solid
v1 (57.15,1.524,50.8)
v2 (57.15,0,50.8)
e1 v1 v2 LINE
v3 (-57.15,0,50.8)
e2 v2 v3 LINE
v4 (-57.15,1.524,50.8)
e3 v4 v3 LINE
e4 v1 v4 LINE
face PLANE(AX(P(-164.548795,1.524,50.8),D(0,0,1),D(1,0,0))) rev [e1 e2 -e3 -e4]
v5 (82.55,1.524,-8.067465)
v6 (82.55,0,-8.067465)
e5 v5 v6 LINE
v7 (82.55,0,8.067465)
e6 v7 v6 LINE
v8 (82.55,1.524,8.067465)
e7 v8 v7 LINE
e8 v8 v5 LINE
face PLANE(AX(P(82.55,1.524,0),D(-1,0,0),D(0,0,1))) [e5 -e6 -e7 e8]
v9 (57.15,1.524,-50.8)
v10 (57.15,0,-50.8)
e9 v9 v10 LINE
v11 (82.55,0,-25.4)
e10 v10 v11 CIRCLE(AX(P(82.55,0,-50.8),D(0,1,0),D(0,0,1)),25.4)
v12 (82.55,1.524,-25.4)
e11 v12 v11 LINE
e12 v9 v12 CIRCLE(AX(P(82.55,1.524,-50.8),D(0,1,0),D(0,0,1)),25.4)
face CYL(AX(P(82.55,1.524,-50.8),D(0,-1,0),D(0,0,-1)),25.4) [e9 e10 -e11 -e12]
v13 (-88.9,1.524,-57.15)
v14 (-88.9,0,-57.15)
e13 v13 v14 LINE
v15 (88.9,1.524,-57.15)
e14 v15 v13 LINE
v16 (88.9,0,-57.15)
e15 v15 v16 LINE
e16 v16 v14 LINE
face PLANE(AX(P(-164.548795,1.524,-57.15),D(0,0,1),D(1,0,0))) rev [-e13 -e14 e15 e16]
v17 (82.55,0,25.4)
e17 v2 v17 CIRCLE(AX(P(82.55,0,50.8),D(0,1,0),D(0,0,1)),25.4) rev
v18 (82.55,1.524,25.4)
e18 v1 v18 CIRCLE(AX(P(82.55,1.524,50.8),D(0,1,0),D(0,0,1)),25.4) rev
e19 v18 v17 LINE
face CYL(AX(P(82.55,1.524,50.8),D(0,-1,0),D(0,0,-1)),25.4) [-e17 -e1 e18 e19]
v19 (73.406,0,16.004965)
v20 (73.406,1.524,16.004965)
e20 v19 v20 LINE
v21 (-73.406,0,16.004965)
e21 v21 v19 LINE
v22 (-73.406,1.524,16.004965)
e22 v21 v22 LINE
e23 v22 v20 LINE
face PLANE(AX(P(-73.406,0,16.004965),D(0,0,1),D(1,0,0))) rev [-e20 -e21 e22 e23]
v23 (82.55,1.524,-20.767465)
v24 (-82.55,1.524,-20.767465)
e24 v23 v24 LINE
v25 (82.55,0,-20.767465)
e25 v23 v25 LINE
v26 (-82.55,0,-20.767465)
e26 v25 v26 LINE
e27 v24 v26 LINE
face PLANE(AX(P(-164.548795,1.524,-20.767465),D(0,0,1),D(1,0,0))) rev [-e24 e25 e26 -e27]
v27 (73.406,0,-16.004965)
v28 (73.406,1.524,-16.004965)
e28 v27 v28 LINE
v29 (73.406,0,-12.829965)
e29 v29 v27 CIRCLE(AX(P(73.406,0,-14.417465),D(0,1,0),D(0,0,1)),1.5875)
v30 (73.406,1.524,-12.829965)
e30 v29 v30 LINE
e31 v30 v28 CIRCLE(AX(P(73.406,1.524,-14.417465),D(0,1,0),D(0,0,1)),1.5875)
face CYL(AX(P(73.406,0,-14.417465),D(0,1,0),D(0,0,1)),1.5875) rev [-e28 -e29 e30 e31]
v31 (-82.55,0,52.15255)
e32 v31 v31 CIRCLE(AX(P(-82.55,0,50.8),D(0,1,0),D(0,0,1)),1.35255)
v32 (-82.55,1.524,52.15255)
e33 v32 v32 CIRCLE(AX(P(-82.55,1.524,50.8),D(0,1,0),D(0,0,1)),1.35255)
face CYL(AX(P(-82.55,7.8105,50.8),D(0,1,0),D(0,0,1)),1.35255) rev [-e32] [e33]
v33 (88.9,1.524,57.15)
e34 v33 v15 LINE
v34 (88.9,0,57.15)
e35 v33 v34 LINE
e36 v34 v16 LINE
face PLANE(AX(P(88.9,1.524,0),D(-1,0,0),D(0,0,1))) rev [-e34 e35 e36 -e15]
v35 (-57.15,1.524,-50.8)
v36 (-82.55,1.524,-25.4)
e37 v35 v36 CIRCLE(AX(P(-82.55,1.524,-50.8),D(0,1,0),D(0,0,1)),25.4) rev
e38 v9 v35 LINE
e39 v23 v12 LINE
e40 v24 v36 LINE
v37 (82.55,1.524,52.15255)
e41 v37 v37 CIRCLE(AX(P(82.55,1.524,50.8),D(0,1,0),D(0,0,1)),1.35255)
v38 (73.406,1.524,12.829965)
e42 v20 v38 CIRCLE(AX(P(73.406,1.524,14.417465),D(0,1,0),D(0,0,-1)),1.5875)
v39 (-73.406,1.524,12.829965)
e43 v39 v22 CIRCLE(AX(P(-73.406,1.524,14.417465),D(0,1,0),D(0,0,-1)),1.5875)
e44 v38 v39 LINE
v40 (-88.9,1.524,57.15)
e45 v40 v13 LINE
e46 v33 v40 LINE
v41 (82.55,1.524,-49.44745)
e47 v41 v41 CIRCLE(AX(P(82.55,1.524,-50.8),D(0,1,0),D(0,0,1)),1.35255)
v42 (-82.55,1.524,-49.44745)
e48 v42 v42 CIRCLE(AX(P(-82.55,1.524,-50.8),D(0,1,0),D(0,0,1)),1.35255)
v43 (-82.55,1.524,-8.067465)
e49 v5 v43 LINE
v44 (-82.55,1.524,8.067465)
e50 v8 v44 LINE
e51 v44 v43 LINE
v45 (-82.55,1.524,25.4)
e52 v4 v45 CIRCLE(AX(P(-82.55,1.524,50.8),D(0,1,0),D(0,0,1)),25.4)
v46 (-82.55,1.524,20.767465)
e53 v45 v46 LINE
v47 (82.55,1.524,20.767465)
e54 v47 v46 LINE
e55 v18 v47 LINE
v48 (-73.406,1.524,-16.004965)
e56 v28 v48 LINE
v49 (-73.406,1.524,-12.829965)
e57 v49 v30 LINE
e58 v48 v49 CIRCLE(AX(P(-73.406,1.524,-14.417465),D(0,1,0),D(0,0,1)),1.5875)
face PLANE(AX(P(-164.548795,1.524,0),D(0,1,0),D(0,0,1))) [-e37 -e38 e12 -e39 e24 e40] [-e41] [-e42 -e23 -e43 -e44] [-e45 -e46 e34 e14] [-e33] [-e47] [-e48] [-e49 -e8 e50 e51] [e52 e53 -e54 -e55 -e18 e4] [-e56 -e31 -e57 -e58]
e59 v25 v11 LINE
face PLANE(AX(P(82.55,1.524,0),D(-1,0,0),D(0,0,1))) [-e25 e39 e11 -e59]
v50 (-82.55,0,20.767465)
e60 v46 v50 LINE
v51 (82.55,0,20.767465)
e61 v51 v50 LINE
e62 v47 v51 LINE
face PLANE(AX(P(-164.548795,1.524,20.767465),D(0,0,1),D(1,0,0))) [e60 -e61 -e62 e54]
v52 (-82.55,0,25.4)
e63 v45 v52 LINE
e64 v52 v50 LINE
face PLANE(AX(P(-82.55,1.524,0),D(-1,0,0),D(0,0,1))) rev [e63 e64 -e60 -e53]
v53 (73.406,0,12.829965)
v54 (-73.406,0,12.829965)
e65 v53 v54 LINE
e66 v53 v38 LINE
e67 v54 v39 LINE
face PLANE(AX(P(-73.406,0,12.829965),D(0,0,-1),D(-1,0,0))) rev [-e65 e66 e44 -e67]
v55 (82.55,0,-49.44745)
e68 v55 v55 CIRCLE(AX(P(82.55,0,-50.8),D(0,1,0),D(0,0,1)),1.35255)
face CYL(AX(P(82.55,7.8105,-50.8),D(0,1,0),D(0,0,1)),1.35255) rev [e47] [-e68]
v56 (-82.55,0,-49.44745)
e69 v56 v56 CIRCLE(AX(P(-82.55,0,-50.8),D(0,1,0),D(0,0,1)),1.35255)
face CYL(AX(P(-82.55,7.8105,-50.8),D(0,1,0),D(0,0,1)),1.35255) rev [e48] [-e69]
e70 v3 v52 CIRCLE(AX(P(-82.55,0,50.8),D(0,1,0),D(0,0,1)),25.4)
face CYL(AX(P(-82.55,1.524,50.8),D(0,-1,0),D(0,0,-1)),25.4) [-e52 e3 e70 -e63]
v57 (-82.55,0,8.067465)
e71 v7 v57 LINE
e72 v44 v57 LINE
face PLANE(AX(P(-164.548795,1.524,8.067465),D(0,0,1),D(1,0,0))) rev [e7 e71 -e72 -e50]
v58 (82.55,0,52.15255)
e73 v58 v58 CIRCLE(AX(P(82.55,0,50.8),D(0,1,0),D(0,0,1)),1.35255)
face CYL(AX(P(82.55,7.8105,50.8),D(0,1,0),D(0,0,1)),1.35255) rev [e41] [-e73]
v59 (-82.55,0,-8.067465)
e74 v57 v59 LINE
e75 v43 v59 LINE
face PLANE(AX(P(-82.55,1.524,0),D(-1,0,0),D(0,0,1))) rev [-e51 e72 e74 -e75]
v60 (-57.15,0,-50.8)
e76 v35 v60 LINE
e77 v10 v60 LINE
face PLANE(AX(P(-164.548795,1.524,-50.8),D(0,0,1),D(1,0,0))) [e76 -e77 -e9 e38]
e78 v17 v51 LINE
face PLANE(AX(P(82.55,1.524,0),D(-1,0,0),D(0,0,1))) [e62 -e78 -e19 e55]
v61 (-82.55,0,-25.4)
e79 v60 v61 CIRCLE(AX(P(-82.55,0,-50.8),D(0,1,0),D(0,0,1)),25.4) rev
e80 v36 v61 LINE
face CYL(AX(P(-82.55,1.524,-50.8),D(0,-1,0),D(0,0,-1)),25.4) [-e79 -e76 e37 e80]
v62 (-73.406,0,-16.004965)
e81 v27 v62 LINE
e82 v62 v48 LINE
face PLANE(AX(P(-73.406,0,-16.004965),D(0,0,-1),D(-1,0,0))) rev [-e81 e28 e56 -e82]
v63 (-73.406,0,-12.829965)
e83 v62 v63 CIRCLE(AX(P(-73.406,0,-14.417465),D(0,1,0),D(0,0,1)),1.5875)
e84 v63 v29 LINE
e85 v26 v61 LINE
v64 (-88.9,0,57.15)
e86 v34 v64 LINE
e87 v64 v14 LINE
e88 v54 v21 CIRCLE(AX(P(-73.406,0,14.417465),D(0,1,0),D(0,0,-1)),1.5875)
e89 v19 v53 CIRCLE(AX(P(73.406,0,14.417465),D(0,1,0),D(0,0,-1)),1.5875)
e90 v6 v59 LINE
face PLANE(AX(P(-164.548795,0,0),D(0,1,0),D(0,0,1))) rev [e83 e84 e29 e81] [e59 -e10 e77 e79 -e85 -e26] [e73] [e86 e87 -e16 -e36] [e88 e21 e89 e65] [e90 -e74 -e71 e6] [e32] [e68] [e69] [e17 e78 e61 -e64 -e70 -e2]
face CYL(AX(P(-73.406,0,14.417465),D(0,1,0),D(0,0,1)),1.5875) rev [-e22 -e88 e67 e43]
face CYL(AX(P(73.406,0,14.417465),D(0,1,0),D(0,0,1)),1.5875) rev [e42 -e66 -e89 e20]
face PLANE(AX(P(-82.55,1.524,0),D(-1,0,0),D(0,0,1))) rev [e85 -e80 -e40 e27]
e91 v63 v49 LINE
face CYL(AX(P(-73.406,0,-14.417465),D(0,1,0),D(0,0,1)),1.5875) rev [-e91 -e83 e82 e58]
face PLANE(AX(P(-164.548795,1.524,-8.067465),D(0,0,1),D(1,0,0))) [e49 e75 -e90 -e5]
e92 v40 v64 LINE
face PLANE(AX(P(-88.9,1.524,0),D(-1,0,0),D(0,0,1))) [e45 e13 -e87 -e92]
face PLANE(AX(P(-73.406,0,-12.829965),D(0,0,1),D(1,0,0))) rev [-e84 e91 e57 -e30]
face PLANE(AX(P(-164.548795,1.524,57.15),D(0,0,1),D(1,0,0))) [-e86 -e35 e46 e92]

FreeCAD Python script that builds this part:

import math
import FreeCAD as App
import Part
import Sketcher

V = App.Vector
Q = App.Units.Quantity

doc = App.newDocument("Part")
body = doc.addObject("PartDesign::Body", "Body")

# Sketch on XZ plane
sketch1 = body.newObject("Sketcher::SketchObject", "Sketch")
sketch1.AttachmentSupport = (doc.getObject("XZ_Plane"), [""])
sketch1.MapMode = "FlatFace"
sketch1.addGeometry([
    Part.LineSegment(V(-88.9, -57.15, 0), V(-88.9, 57.15, 0)),  # 0
    Part.LineSegment(V(-88.9, 57.15, 0), V(88.9, 57.15, 0)),  # 1
    Part.LineSegment(V(88.9, 57.15, 0), V(88.9, -57.15, 0)),  # 2
    Part.LineSegment(V(88.9, -57.15, 0), V(-88.9, -57.15, 0)),  # 3
    Part.ArcOfCircle(Part.Circle(V(-82.55, 50.8, 0), V(0, 0, 1), 25.4), math.radians(-90), math.radians(0)),  # 4
    Part.LineSegment(V(-82.55, 25.4, 0), V(-82.55, 20.767465, 0)),  # 5
    Part.LineSegment(V(-82.55, 20.767465, 0), V(82.55, 20.767465, 0)),  # 6
    Part.LineSegment(V(82.55, 20.767465, 0), V(82.55, 25.4, 0)),  # 7
    Part.ArcOfCircle(Part.Circle(V(82.55, 50.8, 0), V(0, 0, 1), 25.4), math.radians(180), math.radians(270)),  # 8
    Part.LineSegment(V(57.15, 50.8, 0), V(-57.15, 50.8, 0)),  # 9
    Part.LineSegment(V(82.55, 8.067465, 0), V(-82.55, 8.067465, 0)),  # 10
    Part.LineSegment(V(-82.55, 8.067465, 0), V(-82.55, -8.067465, 0)),  # 11
    Part.LineSegment(V(-82.55, -8.067465, 0), V(82.55, -8.067465, 0)),  # 12
    Part.LineSegment(V(82.55, -8.067465, 0), V(82.55, 8.067465, 0)),  # 13
    Part.LineSegment(V(82.55, -25.4, 0), V(82.55, -20.767465, 0)),  # 14
    Part.LineSegment(V(82.55, -20.767465, 0), V(-82.55, -20.767465, 0)),  # 15
    Part.LineSegment(V(-82.55, -20.767465, 0), V(-82.55, -25.4, 0)),  # 16
    Part.ArcOfCircle(Part.Circle(V(-82.55, -50.8, 0), V(0, 0, 1), 25.4), math.radians(0), math.radians(90)),  # 17
    Part.LineSegment(V(-57.15, -50.8, 0), V(57.15, -50.8, 0)),  # 18
    Part.ArcOfCircle(Part.Circle(V(82.55, -50.8, 0), V(0, 0, 1), 25.4), math.radians(90), math.radians(180)),  # 19
], False)
sketch1.addConstraint([
    Sketcher.Constraint("Coincident", 0, 2, 1, 1),
    Sketcher.Constraint("Coincident", 1, 2, 2, 1),
    Sketcher.Constraint("Coincident", 2, 2, 3, 1),
    Sketcher.Constraint("Coincident", 3, 2, 0, 1),
    Sketcher.Constraint("Coincident", 4, 1, 5, 1),
    Sketcher.Constraint("Coincident", 5, 2, 6, 1),
    Sketcher.Constraint("Coincident", 6, 2, 7, 1),
    Sketcher.Constraint("Coincident", 7, 2, 8, 2),
    Sketcher.Constraint("Coincident", 8, 1, 9, 1),
    Sketcher.Constraint("Coincident", 9, 2, 4, 2),
    Sketcher.Constraint("Coincident", 10, 2, 11, 1),
    Sketcher.Constraint("Coincident", 11, 2, 12, 1),
    Sketcher.Constraint("Coincident", 12, 2, 13, 1),
    Sketcher.Constraint("Coincident", 13, 2, 10, 1),
    Sketcher.Constraint("Coincident", 14, 2, 15, 1),
    Sketcher.Constraint("Coincident", 15, 2, 16, 1),
    Sketcher.Constraint("Coincident", 16, 2, 17, 2),
    Sketcher.Constraint("Coincident", 17, 1, 18, 1),
    Sketcher.Constraint("Coincident", 18, 2, 19, 2),
    Sketcher.Constraint("Coincident", 19, 1, 14, 1),
    Sketcher.Constraint("Vertical", 0),
    Sketcher.Constraint("Horizontal", 1),
    Sketcher.Constraint("Vertical", 2),
    Sketcher.Constraint("Horizontal", 3),
    Sketcher.Constraint("Vertical", 5),
    Sketcher.Constraint("Horizontal", 6),
    Sketcher.Constraint("Vertical", 7),
    Sketcher.Constraint("Horizontal", 9),
    Sketcher.Constraint("Horizontal", 10),
    Sketcher.Constraint("Vertical", 11),
    Sketcher.Constraint("Horizontal", 12),
    Sketcher.Constraint("Vertical", 13),
    Sketcher.Constraint("Vertical", 14),
    Sketcher.Constraint("Horizontal", 15),
    Sketcher.Constraint("Vertical", 16),
    Sketcher.Constraint("Horizontal", 18),
    Sketcher.Constraint("Equal", 4, 8),
    Sketcher.Constraint("Equal", 8, 17),
    Sketcher.Constraint("Equal", 17, 19),
    Sketcher.Constraint("Symmetric", 8, 3, 17, 3, -1, 1),
    Sketcher.Constraint("Symmetric", 4, 3, 19, 3, -1, 1),
    Sketcher.Constraint("Symmetric", 0, 2, 2, 2, -1, 1),
    Sketcher.Constraint("Symmetric", 10, 2, 12, 2, -1, 1),
    Sketcher.Constraint("Symmetric", 5, 2, 14, 2, -1, 1),
    Sketcher.Constraint("Symmetric", 4, 3, 8, 3, -2),
    Sketcher.Constraint("Horizontal", 4, 3, 8, 1),
    Sketcher.Constraint("Horizontal", 19, 3, 17, 1),
    Sketcher.Constraint("Vertical", 17, 3, 4, 1),
    Sketcher.Constraint("Vertical", 19, 3, 6, 2),
    Sketcher.Constraint("Vertical", 5, 2, 10, 2),
    Sketcher.Constraint("Vertical", 11, 2, 15, 2),
    Sketcher.Constraint("Equal", 18, 0),
    Sketcher.Constraint("Radius", 4, Q("1 in")),
    Sketcher.Constraint("DistanceX", 1, 1, 1, 2, Q("7 in")),
    Sketcher.Constraint("DistanceX", 6, 1, 6, 2, Q("6.5 in")),
    Sketcher.Constraint("DistanceY", -1, 1, 4, 3, Q("2 in")),
    Sketcher.Constraint("DistanceY", 10, 2, 5, 2, Q("0.5 in")),
    Sketcher.Constraint("DistanceY", 11, 2, 11, 1, 16.134929),
])
pad1 = body.newObject("PartDesign::Pad", "Pad")
pad1.Profile = sketch1
pad1.Length = Q("0.06 in")
pad1.Reversed = True

# Sketch on XZ plane
sketch2 = body.newObject("Sketcher::SketchObject", "Sketch001")
sketch2.AttachmentSupport = (doc.getObject("XZ_Plane"), [""])
sketch2.MapMode = "FlatFace"
sketch2.AttachmentOffset = App.Placement(V(0, 0, -0.06 * 25.4), App.Rotation())
sketch2.addGeometry([
    Part.LineSegment(V(73.406, -16.004965, 0), V(-73.406, -16.004965, 0)),  # 0
    Part.ArcOfCircle(Part.Circle(V(-73.406, -14.417465, 0), V(0, 0, 1), 1.5875), math.radians(90), math.radians(270)),  # 1
    Part.LineSegment(V(-73.406, -12.829965, 0), V(73.406, -12.829965, 0)),  # 2
    Part.ArcOfCircle(Part.Circle(V(73.406, -14.417465, 0), V(0, 0, 1), 1.5875), math.radians(-90), math.radians(90)),  # 3
    Part.LineSegment(V(-73.406, 16.004965, 0), V(73.406, 16.004965, 0)),  # 4
    Part.ArcOfCircle(Part.Circle(V(73.406, 14.417465, 0), V(0, 0, 1), 1.5875), math.radians(-90), math.radians(90)),  # 5
    Part.LineSegment(V(73.406, 12.829965, 0), V(-73.406, 12.829965, 0)),  # 6
    Part.ArcOfCircle(Part.Circle(V(-73.406, 14.417465, 0), V(0, 0, 1), 1.5875), math.radians(90), math.radians(270)),  # 7
], False)
sketch2.addConstraint([
    Sketcher.Constraint("Tangent", 0, 2, 1, 2),
    Sketcher.Constraint("Tangent", 1, 1, 2, 1),
    Sketcher.Constraint("Tangent", 2, 2, 3, 2),
    Sketcher.Constraint("Tangent", 3, 1, 0, 1),
    Sketcher.Constraint("Tangent", 4, 2, 5, 2),
    Sketcher.Constraint("Tangent", 5, 1, 6, 1),
    Sketcher.Constraint("Tangent", 6, 2, 7, 2),
    Sketcher.Constraint("Tangent", 7, 1, 4, 1),
    Sketcher.Constraint("Horizontal", 0),
    Sketcher.Constraint("Horizontal", 2),
    Sketcher.Constraint("Horizontal", 4),
    Sketcher.Constraint("Horizontal", 6),
    Sketcher.Constraint("Equal", 3, 5),
    Sketcher.Constraint("Symmetric", 1, 3, 5, 3, -1, 1),
    Sketcher.Constraint("Vertical", 3, 3, 5, 3),
    Sketcher.Constraint("Vertical", 1, 3, 7, 3),
    Sketcher.Constraint("Radius", 1, Q("0.0625 in")),
    Sketcher.Constraint("DistanceX", 0, 2, 0, 1, Q("5.78 in")),
    Sketcher.Constraint("DistanceY", 3, 3, 5, 3, 28.834929),
])
pocket1 = body.newObject("PartDesign::Pocket", "Pocket")
pocket1.Profile = sketch2
pocket1.Type = "ThroughAll"
pocket1.Reversed = True

# Sketch on XZ plane
sketch3 = body.newObject("Sketcher::SketchObject", "Sketch002")
sketch3.AttachmentSupport = (doc.getObject("XZ_Plane"), [""])
sketch3.MapMode = "FlatFace"
sketch3.AttachmentOffset = App.Placement(V(0, 0, -0.3075 * 25.4), App.Rotation())
sketch3.addGeometry([
    Part.Circle(V(-82.55, -50.8, 0), V(0, 0, 1), 1.35255),
    Part.Circle(V(-82.55, 50.8, 0), V(0, 0, 1), 1.35255),
    Part.Circle(V(82.55, 50.8, 0), V(0, 0, 1), 1.35255),
    Part.Circle(V(82.55, -50.8, 0), V(0, 0, 1), 1.35255),
], False)
sketch3.addConstraint([
    Sketcher.Constraint("Equal", 0, 1),
    Sketcher.Constraint("Equal", 1, 2),
    Sketcher.Constraint("Equal", 2, 3),
    Sketcher.Constraint("Symmetric", 0, 3, 2, 3, -1, 1),
    Sketcher.Constraint("Symmetric", 1, 3, 3, 3, -1, 1),
    Sketcher.Constraint("Symmetric", 1, 3, 2, 3, -2),
    Sketcher.Constraint("DistanceY", 0, 3, -1, 1, Q("2 in")),
    Sketcher.Constraint("Diameter", 0, Q("0.1065 in")),
    Sketcher.Constraint("DistanceX", 1, 3, 2, 3, Q("6.5 in")),
])
doc.recompute()
hole = body.newObject("PartDesign::Hole", "Hole")
hole.Profile = sketch3
hole.ThreadType = "None"
hole.Diameter = Q("0.1065 in")
hole.DepthType = "ThroughAll"
hole.Reversed = True

# Sketch on XZ plane
sketch4 = body.newObject("Sketcher::SketchObject", "Sketch003")
sketch4.AttachmentSupport = (doc.getObject("XZ_Plane"), [""])
sketch4.MapMode = "FlatFace"
sketch4.AttachmentOffset = App.Placement(V(0, 0, -0.06 * 25.4), App.Rotation())
sketch4.addGeometry([
    Part.Circle(V(-82.55, -50.8, 0), V(0, 0, 1), 1.35255),
    Part.Circle(V(-82.55, 50.8, 0), V(0, 0, 1), 1.35255),
    Part.Circle(V(82.55, 50.8, 0), V(0, 0, 1), 1.35255),
    Part.Circle(V(82.55, -50.8, 0), V(0, 0, 1), 1.35255),
], False)
sketch4.addConstraint([
    Sketcher.Constraint("Equal", 0, 1),
    Sketcher.Constraint("Equal", 1, 2),
    Sketcher.Constraint("Equal", 2, 3),
    Sketcher.Constraint("Symmetric", 0, 3, 2, 3, -1, 1),
    Sketcher.Constraint("Symmetric", 1, 3, 3, 3, -1, 1),
    Sketcher.Constraint("Symmetric", 1, 3, 2, 3, -2),
    Sketcher.Constraint("DistanceY", 0, 3, -1, 1, Q("2 in")),
    Sketcher.Constraint("Diameter", 0, Q("0.1065 in")),
    Sketcher.Constraint("DistanceX", 1, 3, 2, 3, Q("6.5 in")),
])
doc.recompute()
hole2 = body.newObject("PartDesign::Hole", "Hole001")
hole2.Profile = sketch4
hole2.ThreadType = "None"
hole2.Diameter = Q("0.1065 in")
hole2.DepthType = "ThroughAll"
hole2.Reversed = True

doc.recompute()
